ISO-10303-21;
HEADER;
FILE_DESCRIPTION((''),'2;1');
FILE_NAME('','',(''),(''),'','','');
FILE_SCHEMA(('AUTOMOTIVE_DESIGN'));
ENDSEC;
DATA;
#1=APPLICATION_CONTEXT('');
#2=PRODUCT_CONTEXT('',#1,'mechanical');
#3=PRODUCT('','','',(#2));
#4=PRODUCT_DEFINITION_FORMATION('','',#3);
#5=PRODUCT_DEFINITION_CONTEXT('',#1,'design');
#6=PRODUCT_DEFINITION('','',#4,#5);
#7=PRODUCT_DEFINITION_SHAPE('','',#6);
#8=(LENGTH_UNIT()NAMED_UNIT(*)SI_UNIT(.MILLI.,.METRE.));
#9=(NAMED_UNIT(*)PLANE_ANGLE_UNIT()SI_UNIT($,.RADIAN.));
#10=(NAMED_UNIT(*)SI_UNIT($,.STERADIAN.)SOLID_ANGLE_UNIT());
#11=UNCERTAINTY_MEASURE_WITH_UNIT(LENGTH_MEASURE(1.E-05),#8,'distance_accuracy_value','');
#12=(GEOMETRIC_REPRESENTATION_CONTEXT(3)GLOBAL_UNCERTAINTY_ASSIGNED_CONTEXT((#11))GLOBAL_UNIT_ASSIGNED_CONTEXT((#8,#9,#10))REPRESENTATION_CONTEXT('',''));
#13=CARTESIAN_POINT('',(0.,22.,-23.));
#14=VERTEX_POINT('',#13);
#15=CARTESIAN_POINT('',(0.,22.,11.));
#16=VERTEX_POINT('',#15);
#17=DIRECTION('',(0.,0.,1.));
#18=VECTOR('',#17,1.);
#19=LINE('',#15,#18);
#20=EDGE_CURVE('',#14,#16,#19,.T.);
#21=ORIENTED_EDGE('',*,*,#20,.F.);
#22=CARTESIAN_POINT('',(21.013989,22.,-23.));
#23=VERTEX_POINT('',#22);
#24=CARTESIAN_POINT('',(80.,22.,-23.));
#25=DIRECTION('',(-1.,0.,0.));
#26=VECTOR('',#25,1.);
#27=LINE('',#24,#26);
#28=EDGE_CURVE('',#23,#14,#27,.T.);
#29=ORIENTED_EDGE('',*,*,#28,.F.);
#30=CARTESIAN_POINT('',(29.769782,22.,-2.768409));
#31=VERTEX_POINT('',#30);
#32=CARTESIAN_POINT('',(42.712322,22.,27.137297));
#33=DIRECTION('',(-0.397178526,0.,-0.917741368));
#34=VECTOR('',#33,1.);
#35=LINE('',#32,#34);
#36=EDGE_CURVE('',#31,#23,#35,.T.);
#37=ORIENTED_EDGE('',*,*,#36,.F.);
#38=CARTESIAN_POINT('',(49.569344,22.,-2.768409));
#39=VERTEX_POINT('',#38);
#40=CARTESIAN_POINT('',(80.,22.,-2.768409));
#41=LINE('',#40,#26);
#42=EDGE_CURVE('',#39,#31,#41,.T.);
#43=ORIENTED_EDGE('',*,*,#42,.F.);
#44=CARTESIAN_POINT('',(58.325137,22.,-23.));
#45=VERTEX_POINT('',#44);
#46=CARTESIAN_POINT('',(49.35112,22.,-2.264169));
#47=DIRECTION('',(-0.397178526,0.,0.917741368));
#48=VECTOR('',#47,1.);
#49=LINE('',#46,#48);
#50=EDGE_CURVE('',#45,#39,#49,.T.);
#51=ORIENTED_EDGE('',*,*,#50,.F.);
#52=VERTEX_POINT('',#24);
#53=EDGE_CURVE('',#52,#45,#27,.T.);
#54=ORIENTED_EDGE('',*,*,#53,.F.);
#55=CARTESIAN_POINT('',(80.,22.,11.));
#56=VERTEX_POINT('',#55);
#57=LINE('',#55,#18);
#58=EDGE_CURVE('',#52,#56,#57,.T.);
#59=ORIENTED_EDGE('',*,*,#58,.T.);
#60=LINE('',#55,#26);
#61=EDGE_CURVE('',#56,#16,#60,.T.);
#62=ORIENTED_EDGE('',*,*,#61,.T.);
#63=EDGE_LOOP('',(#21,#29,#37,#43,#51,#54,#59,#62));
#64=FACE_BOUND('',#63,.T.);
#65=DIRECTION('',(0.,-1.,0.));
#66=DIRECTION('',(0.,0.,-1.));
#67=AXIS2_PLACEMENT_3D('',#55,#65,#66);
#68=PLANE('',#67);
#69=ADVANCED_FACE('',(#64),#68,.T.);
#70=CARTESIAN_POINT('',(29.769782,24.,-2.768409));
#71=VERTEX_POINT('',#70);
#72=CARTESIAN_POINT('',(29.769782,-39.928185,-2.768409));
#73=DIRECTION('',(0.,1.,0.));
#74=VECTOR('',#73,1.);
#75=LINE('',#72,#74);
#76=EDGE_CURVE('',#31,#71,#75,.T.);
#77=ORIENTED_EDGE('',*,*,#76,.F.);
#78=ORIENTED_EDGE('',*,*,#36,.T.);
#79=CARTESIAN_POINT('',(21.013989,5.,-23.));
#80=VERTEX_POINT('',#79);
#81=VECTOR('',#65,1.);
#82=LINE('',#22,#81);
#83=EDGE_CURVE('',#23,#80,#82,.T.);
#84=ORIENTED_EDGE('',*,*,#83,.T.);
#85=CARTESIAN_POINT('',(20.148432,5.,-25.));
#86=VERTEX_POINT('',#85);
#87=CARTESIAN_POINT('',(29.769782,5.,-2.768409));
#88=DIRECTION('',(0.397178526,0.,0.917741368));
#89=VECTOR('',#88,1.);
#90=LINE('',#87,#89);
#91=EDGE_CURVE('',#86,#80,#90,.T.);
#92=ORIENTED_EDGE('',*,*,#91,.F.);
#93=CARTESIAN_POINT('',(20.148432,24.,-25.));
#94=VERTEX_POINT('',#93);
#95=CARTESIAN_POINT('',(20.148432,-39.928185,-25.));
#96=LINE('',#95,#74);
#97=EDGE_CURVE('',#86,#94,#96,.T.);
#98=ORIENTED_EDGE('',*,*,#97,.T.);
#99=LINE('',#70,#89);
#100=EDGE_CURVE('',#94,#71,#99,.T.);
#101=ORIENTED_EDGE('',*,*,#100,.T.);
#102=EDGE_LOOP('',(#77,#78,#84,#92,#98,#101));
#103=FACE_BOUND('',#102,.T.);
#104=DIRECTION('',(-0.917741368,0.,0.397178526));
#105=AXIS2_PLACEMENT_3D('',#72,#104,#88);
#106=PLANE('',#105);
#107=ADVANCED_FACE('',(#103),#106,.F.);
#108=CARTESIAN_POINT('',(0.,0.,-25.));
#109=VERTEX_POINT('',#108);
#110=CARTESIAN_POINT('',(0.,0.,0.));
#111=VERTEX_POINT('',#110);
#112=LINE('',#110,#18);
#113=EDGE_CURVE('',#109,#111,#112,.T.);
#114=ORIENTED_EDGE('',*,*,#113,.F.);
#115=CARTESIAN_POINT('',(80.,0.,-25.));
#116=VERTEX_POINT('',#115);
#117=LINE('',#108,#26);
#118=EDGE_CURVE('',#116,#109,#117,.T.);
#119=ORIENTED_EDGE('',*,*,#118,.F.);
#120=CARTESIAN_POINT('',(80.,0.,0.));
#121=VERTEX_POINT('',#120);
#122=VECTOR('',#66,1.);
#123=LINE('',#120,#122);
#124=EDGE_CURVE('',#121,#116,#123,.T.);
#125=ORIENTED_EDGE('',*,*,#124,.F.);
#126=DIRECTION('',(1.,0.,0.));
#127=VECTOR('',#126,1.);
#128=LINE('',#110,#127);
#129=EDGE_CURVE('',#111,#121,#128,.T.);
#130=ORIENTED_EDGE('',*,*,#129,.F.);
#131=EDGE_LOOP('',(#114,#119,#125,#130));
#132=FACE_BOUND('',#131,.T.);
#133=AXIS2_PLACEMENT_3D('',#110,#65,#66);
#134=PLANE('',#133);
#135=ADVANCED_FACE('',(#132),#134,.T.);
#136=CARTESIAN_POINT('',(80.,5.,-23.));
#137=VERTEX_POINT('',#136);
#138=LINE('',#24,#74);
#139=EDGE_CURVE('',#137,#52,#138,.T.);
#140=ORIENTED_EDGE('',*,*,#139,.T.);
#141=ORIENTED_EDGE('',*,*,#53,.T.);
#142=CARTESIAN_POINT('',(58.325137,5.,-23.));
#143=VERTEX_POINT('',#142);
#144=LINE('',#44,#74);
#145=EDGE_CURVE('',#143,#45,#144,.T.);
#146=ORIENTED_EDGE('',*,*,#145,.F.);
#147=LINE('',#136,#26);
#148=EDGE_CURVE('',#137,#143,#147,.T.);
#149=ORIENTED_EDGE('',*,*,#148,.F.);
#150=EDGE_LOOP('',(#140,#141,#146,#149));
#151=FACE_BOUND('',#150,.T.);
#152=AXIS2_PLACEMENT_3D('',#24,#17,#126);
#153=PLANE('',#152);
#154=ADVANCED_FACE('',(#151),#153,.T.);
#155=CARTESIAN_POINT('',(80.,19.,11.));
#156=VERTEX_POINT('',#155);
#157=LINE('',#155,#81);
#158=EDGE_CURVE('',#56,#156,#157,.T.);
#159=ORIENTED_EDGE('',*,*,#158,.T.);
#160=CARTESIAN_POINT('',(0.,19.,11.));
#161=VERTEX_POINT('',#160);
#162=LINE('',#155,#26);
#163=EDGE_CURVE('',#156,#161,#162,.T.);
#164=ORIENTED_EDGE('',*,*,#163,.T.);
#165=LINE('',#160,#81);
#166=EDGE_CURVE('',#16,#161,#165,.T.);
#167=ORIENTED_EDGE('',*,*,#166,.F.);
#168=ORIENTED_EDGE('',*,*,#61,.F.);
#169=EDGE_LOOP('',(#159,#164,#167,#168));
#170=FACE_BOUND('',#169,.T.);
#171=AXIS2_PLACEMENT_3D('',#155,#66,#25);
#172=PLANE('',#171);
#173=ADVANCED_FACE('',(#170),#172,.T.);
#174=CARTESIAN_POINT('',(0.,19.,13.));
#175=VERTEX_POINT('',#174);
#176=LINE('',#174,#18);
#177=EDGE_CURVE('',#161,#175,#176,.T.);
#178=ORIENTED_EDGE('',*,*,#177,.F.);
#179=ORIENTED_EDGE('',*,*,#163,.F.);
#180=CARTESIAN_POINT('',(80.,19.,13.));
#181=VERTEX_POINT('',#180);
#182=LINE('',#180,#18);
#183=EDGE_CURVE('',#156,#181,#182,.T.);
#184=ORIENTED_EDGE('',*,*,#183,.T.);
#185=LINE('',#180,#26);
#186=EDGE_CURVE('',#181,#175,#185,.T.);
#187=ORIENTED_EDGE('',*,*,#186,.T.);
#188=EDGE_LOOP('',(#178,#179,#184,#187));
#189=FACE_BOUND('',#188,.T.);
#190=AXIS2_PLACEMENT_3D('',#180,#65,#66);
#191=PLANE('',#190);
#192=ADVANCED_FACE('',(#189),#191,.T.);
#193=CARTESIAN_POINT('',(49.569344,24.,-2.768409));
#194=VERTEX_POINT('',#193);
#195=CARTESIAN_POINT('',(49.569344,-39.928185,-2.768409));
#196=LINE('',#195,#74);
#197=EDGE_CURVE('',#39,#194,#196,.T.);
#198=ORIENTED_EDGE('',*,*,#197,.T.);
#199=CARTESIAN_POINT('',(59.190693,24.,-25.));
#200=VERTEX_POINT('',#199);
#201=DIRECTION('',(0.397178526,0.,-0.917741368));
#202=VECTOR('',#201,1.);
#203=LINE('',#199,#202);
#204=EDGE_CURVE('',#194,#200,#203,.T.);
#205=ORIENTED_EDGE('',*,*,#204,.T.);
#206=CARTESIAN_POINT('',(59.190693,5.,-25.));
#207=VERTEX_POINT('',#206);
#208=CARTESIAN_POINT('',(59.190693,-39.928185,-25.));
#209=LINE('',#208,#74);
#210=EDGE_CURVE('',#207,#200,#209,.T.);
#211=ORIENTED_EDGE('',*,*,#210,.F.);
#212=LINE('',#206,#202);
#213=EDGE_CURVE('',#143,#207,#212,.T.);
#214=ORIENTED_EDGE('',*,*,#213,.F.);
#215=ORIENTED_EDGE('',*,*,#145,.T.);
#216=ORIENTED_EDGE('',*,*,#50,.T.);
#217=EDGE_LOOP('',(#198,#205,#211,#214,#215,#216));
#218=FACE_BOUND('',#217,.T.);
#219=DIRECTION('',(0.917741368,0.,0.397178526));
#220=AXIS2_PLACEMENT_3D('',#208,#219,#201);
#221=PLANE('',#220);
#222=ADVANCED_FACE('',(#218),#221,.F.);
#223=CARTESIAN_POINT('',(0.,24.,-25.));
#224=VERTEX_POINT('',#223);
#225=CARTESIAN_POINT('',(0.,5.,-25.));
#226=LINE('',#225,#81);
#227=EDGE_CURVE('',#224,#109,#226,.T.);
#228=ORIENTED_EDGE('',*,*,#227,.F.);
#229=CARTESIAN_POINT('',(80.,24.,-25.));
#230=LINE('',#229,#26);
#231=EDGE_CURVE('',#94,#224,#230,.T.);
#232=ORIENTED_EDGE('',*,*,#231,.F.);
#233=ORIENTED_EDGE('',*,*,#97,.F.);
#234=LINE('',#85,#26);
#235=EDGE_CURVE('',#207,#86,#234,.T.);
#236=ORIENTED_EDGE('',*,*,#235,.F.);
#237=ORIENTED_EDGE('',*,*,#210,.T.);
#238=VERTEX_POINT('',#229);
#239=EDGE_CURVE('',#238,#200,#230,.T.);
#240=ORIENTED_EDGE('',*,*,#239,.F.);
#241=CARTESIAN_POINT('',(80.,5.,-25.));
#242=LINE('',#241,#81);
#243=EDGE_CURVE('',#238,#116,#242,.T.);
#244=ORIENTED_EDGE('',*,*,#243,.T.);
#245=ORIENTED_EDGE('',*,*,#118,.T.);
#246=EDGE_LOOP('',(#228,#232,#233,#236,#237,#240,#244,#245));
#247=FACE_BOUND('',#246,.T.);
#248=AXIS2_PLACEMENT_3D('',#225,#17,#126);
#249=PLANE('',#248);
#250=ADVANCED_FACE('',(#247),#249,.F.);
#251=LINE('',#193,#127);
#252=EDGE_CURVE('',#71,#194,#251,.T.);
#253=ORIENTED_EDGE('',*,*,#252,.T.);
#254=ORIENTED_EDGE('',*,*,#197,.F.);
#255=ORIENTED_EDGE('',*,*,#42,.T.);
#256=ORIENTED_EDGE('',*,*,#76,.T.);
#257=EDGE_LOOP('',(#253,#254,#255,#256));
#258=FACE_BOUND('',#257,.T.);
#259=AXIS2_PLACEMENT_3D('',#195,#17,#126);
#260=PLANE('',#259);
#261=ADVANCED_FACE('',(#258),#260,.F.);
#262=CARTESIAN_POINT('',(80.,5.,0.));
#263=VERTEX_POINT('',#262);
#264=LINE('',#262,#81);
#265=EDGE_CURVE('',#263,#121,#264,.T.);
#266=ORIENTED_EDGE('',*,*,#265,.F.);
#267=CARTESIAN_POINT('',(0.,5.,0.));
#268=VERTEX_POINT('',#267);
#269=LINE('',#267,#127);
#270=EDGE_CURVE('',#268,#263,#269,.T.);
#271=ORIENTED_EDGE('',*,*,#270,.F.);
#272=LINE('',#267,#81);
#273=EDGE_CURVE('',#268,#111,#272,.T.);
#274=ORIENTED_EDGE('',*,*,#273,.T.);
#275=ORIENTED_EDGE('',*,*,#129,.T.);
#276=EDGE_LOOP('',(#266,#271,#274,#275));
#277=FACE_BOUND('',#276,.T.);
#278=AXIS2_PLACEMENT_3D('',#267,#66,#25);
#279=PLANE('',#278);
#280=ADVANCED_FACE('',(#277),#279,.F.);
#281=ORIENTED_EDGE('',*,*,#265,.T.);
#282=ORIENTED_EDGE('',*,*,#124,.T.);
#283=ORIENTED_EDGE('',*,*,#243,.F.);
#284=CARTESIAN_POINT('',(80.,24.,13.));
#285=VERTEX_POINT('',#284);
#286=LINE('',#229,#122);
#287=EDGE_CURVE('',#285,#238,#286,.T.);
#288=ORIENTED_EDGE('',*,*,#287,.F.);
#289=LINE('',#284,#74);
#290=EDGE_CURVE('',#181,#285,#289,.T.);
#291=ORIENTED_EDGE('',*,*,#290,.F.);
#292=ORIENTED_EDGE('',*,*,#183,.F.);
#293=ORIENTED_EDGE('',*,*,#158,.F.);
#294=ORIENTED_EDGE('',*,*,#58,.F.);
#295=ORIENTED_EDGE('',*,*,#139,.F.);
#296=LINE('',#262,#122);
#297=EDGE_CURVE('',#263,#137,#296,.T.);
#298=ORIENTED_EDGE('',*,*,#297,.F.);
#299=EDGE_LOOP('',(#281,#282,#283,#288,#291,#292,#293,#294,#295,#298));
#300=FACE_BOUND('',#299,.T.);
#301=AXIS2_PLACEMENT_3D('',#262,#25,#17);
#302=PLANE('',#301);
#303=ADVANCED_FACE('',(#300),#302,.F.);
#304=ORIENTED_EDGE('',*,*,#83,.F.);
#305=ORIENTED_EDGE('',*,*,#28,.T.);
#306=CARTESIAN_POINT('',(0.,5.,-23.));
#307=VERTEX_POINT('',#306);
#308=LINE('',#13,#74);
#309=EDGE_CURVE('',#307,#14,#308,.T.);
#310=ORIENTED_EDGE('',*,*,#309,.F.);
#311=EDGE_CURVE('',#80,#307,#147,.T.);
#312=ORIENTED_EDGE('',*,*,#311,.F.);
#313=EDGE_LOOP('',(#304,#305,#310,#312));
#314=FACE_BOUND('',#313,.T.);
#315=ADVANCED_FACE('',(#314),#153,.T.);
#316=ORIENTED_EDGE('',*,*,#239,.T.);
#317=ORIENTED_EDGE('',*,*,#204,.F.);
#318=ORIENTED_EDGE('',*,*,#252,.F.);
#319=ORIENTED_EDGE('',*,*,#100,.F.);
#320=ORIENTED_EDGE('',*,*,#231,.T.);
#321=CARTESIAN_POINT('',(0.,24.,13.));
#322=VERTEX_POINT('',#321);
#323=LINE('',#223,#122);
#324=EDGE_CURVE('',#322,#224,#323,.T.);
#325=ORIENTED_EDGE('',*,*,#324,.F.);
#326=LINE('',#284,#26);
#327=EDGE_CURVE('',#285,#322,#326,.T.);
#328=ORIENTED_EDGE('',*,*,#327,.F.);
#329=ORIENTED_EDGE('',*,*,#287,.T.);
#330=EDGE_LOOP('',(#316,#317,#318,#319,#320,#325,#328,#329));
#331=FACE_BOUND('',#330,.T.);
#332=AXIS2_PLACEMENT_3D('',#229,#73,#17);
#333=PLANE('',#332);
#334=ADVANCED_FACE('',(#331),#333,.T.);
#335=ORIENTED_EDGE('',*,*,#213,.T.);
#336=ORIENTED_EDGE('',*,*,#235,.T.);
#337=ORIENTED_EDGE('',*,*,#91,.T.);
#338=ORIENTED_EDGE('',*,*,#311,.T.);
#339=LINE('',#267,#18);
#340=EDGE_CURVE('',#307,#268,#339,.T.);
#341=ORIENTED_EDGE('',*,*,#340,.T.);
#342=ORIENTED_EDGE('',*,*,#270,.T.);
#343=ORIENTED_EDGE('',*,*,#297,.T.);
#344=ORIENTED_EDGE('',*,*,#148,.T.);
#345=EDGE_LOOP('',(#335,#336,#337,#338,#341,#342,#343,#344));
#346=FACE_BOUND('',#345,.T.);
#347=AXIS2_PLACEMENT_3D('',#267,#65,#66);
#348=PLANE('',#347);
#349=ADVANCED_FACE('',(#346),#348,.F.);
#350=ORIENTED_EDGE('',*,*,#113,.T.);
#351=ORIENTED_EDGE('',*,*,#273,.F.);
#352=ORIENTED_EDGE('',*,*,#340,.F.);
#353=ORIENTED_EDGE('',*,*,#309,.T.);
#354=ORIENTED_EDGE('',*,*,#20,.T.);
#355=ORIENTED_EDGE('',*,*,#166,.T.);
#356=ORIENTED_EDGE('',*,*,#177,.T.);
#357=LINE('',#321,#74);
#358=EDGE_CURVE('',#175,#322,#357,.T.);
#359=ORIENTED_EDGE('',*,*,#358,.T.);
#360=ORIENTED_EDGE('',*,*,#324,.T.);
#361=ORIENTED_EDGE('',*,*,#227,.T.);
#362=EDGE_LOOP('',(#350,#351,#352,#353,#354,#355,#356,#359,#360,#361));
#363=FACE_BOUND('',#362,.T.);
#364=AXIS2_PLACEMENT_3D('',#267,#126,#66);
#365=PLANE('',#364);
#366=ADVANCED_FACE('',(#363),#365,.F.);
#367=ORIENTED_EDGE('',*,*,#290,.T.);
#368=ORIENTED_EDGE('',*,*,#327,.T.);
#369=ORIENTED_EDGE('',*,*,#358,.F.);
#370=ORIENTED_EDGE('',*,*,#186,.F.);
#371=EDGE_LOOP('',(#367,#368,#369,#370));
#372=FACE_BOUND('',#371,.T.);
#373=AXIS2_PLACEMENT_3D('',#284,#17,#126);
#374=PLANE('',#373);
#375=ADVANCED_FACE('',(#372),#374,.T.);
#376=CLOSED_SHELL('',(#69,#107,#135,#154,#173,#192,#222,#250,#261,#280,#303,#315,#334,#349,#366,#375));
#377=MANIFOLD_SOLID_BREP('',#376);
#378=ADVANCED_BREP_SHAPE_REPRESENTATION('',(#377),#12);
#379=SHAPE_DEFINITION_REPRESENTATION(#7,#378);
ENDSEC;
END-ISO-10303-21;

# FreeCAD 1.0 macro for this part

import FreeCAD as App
import Part
import Sketcher
Q = App.Units.Quantity

doc = App.newDocument("Part")
body = doc.addObject("PartDesign::Body", "Body")

sketch1 = body.newObject("Sketcher::SketchObject", "Sketch")
sketch1.AttachmentSupport = (doc.getObject("XZ_Plane"), [""])
sketch1.MapMode = "FlatFace"
sketch1.addGeometry(Part.LineSegment(App.Vector(0, -25, 0), App.Vector(0, 0, 0)), False)
sketch1.addGeometry(Part.LineSegment(App.Vector(0, 0, 0), App.Vector(80, 0, 0)), False)
sketch1.addGeometry(Part.LineSegment(App.Vector(80, 0, 0), App.Vector(80, -25, 0)), False)
sketch1.addGeometry(Part.LineSegment(App.Vector(80, -25, 0), App.Vector(0, -25, 0)), False)
sketch1.addConstraint(Sketcher.Constraint("Coincident", 0, 2, 1, 1))
sketch1.addConstraint(Sketcher.Constraint("Coincident", 1, 2, 2, 1))
sketch1.addConstraint(Sketcher.Constraint("Coincident", 2, 2, 3, 1))
sketch1.addConstraint(Sketcher.Constraint("Coincident", 3, 2, 0, 1))
sketch1.addConstraint(Sketcher.Constraint("Vertical", 0))
sketch1.addConstraint(Sketcher.Constraint("Horizontal", 1))
sketch1.addConstraint(Sketcher.Constraint("Vertical", 2))
sketch1.addConstraint(Sketcher.Constraint("Horizontal", 3))
sketch1.addConstraint(Sketcher.Constraint("Coincident", 0, 2, -1, 1))
sketch1.addConstraint(Sketcher.Constraint("DistanceX", 1, 1, 1, 2, Q("80 mm")))
sketch1.addConstraint(Sketcher.Constraint("DistanceY", 0, 1, 0, 2, Q("25 mm")))
pad1 = body.newObject("PartDesign::Pad", "Pad")
pad1.Profile = sketch1
pad1.Length = 5
pad1.Reversed = True

sketch2 = body.newObject("Sketcher::SketchObject", "Sketch001")
sketch2.AttachmentSupport = (doc.getObject("YZ_Plane"), [""])
sketch2.MapMode = "FlatFace"
sketch2.addGeometry(Part.LineSegment(App.Vector(24, -25, 0), App.Vector(5, -25, 0)), False)
sketch2.addGeometry(Part.LineSegment(App.Vector(5, -25, 0), App.Vector(5, -23, 0)), False)
sketch2.addGeometry(Part.LineSegment(App.Vector(5, -23, 0), App.Vector(22, -23, 0)), False)
sketch2.addGeometry(Part.LineSegment(App.Vector(22, -23, 0), App.Vector(22, 11, 0)), False)
sketch2.addGeometry(Part.LineSegment(App.Vector(22, 11, 0), App.Vector(19, 11, 0)), False)
sketch2.addGeometry(Part.LineSegment(App.Vector(19, 11, 0), App.Vector(19, 13, 0)), False)
sketch2.addGeometry(Part.LineSegment(App.Vector(19, 13, 0), App.Vector(24, 13, 0)), False)
sketch2.addGeometry(Part.LineSegment(App.Vector(24, 13, 0), App.Vector(24, -25, 0)), False)
sketch2.addConstraint(Sketcher.Constraint("Coincident", 0, 2, 1, 1))
sketch2.addConstraint(Sketcher.Constraint("Coincident", 1, 2, 2, 1))
sketch2.addConstraint(Sketcher.Constraint("Coincident", 2, 2, 3, 1))
sketch2.addConstraint(Sketcher.Constraint("Coincident", 3, 2, 4, 1))
sketch2.addConstraint(Sketcher.Constraint("Coincident", 4, 2, 5, 1))
sketch2.addConstraint(Sketcher.Constraint("Coincident", 5, 2, 6, 1))
sketch2.addConstraint(Sketcher.Constraint("Coincident", 6, 2, 7, 1))
sketch2.addConstraint(Sketcher.Constraint("Coincident", 7, 2, 0, 1))
sketch2.addConstraint(Sketcher.Constraint("Horizontal", 0))
sketch2.addConstraint(Sketcher.Constraint("Vertical", 1))
sketch2.addConstraint(Sketcher.Constraint("Horizontal", 2))
sketch2.addConstraint(Sketcher.Constraint("Vertical", 3))
sketch2.addConstraint(Sketcher.Constraint("Horizontal", 4))
sketch2.addConstraint(Sketcher.Constraint("Vertical", 5))
sketch2.addConstraint(Sketcher.Constraint("Horizontal", 6))
sketch2.addConstraint(Sketcher.Constraint("Vertical", 7))
sketch2.addConstraint(Sketcher.Constraint("Equal", 1, 5))
sketch2.addConstraint(Sketcher.Constraint("DistanceX", 0, 2, 0, 1, Q("19 mm")))
sketch2.addConstraint(Sketcher.Constraint("DistanceX", 2, 1, 2, 2, Q("17 mm")))
sketch2.addConstraint(Sketcher.Constraint("DistanceX", 4, 2, 4, 1, Q("3 mm")))
sketch2.addConstraint(Sketcher.Constraint("DistanceY", 1, 1, 1, 2, Q("2 mm")))
sketch2.addConstraint(Sketcher.Constraint("DistanceY", 3, 1, 3, 2, Q("34 mm")))
sketch2.addConstraint(Sketcher.Constraint("DistanceX", -1, 1, 0, 2, Q("5 mm")))
sketch2.addConstraint(Sketcher.Constraint("DistanceY", 0, 2, -1, 1, Q("25 mm")))
pad2 = body.newObject("PartDesign::Pad", "Pad001")
pad2.Profile = sketch2
pad2.Length = 80

sketch3 = body.newObject("Sketcher::SketchObject", "Sketch002")
sketch3.AttachmentSupport = (doc.getObject("XZ_Plane"), [""])
sketch3.MapMode = "FlatFace"
sketch3.AttachmentOffset = App.Placement(App.Vector(0, 0, -24), App.Rotation())
sketch3.addGeometry(Part.LineSegment(App.Vector(50, -3, 0), App.Vector(59, -25, 0)), False)
sketch3.addGeometry(Part.LineSegment(App.Vector(59, -25, 0), App.Vector(20, -25, 0)), False)
sketch3.addGeometry(Part.LineSegment(App.Vector(20, -25, 0), App.Vector(30, -3, 0)), False)
sketch3.addGeometry(Part.LineSegment(App.Vector(30, -3, 0), App.Vector(50, -3, 0)), False)
sketch3.addConstraint(Sketcher.Constraint("Coincident", 0, 2, 1, 1))
sketch3.addConstraint(Sketcher.Constraint("Coincident", 1, 2, 2, 1))
sketch3.addConstraint(Sketcher.Constraint("Coincident", 2, 2, 3, 1))
sketch3.addConstraint(Sketcher.Constraint("Coincident", 3, 2, 0, 1))
sketch3.addConstraint(Sketcher.Constraint("Horizontal", 1))
sketch3.addConstraint(Sketcher.Constraint("Horizontal", 3))
sketch3.addConstraint(Sketcher.Constraint("Equal", 0, 2))
sketch3.addConstraint(Sketcher.Constraint("DistanceY", 0, 2, -1, 1, Q("25 mm")))
sketch3.addConstraint(Sketcher.Constraint("DistanceX", 1, 2, 1, 1, Q("39.042261 mm")))
sketch3.addConstraint(Sketcher.Constraint("DistanceX", 3, 1, 3, 2, Q("19.799562 mm")))
sketch3.addConstraint(Sketcher.Constraint("DistanceX", -1, 1, 2, 2, Q("29.769782 mm")))
sketch3.addConstraint(Sketcher.Constraint("DistanceY", 2, 2, -1, 1, Q("2.768409 mm")))
pocket1 = body.newObject("PartDesign::Pocket", "Pocket")
pocket1.Profile = sketch3
pocket1.Length = 19
pocket1.Reversed = True

doc.recompute()
